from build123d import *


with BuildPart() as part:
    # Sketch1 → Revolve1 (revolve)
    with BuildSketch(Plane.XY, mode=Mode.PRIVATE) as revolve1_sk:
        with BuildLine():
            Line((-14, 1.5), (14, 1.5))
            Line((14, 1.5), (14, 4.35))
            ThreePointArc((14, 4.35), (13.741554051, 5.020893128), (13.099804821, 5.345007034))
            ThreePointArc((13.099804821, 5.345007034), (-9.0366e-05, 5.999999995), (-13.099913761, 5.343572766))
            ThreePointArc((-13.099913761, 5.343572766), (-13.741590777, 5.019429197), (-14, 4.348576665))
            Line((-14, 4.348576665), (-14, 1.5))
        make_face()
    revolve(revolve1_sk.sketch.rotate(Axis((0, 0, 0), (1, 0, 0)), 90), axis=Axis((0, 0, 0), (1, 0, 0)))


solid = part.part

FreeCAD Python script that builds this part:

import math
import FreeCAD as App
import Part
import Sketcher
from FreeCAD import Vector

doc = App.newDocument("Part")
body = doc.addObject("PartDesign::Body", "Body")

# Sketch on XY plane
sketch1 = doc.addObject("Sketcher::SketchObject", "Sketch")
body.addObject(sketch1)
sketch1.AttachmentSupport = (doc.XY_Plane, [""])
sketch1.MapMode = "FlatFace"
sketch1.addGeometry([
    Part.LineSegment(Vector(-14, 1.5, 0), Vector(14, 1.5, 0)),  # 0
    Part.LineSegment(Vector(14, 1.5, 0), Vector(14, 4.3, 0)),  # 1
    Part.ArcOfCircle(Part.Circle(Vector(13, 4.3, 0), Vector(0, 0, 1), 1), math.radians(0), math.radians(84)),  # 2
    Part.ArcOfCircle(Part.Circle(Vector(0, -125.2, 0), Vector(0, 0, 1), 131.2), math.radians(84.27), math.radians(95.73)),  # 3
    Part.ArcOfCircle(Part.Circle(Vector(-13, 4.3, 0), Vector(0, 0, 1), 1), math.radians(96), math.radians(180)),  # 4
    Part.LineSegment(Vector(-14, 4.3, 0), Vector(-14, 1.5, 0)),  # 5
], False)
sketch1.addConstraint([
    Sketcher.Constraint("Coincident", 0, 2, 1, 1),
    Sketcher.Constraint("Tangent", 1, 2, 2, 1),
    Sketcher.Constraint("Tangent", 2, 2, 3, 1),
    Sketcher.Constraint("Tangent", 3, 2, 4, 1),
    Sketcher.Constraint("Tangent", 4, 2, 5, 1),
    Sketcher.Constraint("Coincident", 5, 2, 0, 1),
    Sketcher.Constraint("Horizontal", 0),
    Sketcher.Constraint("Vertical", 1),
    Sketcher.Constraint("Vertical", 5),
    Sketcher.Constraint("Equal", 2, 4),
    Sketcher.Constraint("Radius", 2, 1.0),
    Sketcher.Constraint("DistanceX", 0, 1, 0, 2, 28.0),
    Sketcher.Constraint("DistanceX", -1, 1, 2, 3, 13.0),
    Sketcher.Constraint("DistanceY", 1, 1, 1, 2, 2.85),
    Sketcher.Constraint("DistanceY", -1, 1, 0, 2, 1.5),
    Sketcher.Constraint("Radius", 3, 131.183179),
    Sketcher.Constraint("DistanceY", 5, 2, 5, 1, 2.848577),
])
revolution = doc.addObject("PartDesign::Revolution", "Revolution")
body.addObject(revolution)
revolution.Profile = sketch1
revolution.ReferenceAxis = (sketch1, ["H_Axis"])
revolution.Angle = 360

doc.recompute()
